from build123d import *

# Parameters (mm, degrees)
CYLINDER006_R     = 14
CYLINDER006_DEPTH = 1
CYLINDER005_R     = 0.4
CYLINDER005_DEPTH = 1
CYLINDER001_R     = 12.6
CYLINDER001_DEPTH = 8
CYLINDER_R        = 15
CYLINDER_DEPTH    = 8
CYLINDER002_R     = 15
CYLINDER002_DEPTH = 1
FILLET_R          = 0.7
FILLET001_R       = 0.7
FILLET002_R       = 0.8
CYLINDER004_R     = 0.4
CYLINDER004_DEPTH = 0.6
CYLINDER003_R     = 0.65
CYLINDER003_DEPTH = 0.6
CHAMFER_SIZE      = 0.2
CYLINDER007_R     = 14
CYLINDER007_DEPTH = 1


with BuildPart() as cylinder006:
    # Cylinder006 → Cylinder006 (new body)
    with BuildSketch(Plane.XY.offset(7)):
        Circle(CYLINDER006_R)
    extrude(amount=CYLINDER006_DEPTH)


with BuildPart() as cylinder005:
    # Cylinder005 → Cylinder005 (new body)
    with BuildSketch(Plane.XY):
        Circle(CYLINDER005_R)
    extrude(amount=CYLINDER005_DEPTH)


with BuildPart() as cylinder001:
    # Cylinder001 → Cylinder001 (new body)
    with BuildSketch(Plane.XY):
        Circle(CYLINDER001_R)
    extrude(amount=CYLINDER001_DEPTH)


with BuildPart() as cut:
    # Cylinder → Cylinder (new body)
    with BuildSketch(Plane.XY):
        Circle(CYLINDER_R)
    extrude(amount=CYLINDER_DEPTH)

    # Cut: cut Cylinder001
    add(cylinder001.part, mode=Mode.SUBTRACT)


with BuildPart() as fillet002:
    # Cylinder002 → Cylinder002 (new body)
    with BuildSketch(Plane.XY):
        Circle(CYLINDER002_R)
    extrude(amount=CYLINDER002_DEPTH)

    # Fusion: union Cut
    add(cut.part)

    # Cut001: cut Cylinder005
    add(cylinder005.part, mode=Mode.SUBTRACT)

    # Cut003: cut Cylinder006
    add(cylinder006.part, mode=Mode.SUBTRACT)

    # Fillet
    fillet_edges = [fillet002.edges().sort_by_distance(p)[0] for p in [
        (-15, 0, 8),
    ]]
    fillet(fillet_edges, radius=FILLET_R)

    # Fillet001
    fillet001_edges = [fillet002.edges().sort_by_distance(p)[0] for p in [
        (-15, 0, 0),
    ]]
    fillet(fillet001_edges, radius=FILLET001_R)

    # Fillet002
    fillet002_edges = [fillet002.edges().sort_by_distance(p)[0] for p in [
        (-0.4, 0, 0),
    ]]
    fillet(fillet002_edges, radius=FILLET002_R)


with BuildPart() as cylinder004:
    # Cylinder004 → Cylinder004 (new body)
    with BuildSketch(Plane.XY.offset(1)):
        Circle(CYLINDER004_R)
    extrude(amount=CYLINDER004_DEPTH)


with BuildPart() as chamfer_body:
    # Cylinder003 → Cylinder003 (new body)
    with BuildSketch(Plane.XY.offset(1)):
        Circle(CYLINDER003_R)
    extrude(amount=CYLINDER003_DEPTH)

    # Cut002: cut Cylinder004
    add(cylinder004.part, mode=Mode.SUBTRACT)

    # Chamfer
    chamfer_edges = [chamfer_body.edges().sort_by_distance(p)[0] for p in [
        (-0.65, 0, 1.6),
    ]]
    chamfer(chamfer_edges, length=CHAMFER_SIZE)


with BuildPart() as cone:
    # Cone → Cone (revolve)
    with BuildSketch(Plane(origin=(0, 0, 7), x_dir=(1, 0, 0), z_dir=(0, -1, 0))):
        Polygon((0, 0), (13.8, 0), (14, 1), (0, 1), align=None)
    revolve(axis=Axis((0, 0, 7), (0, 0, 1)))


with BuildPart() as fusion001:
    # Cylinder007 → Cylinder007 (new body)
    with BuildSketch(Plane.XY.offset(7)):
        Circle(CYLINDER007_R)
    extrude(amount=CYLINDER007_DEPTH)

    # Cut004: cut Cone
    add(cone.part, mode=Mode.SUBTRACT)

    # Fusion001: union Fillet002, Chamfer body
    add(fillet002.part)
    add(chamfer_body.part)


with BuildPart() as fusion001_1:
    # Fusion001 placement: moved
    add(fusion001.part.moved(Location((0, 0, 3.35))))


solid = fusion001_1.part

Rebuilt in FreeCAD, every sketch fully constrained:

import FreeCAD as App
import Part
import Sketcher
from FreeCAD import Vector
Q = App.Units.Quantity


def edges_at(feature, points):
    """Names of the edges that pass closest to the given points."""
    edges = feature.Shape.Edges
    near = lambda p: min(range(len(edges)), key=lambda i: edges[i].distToShape(Part.Vertex(*p))[0])
    return sorted({f"Edge{near(p) + 1}" for p in points})

doc = App.newDocument("Part")
body = doc.addObject("PartDesign::Body", "Body")

# Sketch on XY plane
sketch1 = body.newObject("Sketcher::SketchObject", "Sketch")
sketch1.AttachmentSupport = (doc.getObject("XY_Plane"), [""])
sketch1.MapMode = "FlatFace"
sketch1.AttachmentOffset = App.Placement(Vector(0, 0, 7), App.Rotation())
sketch1.addGeometry(Part.Circle(Vector(0, 0, 0), Vector(0, 0, 1), 14), False)
sketch1.addConstraint(Sketcher.Constraint("Coincident", 0, 3, -1, 1))
sketch1.addConstraint(Sketcher.Constraint("Diameter", 0, Q("28 mm")))
pad1 = body.newObject("PartDesign::Pad", "Pad")
pad1.Profile = sketch1
pad1.Length = 1
body2 = doc.addObject("PartDesign::Body", "Body001")

# Sketch on XY plane
sketch2 = body2.newObject("Sketcher::SketchObject", "Sketch001")
sketch2.AttachmentSupport = (doc.getObject("XY_Plane001"), [""])
sketch2.MapMode = "FlatFace"
sketch2.addGeometry(Part.Circle(Vector(0, 0, 0), Vector(0, 0, 1), 0.4), False)
sketch2.addConstraint(Sketcher.Constraint("Coincident", 0, 3, -1, 1))
sketch2.addConstraint(Sketcher.Constraint("Diameter", 0, Q("0.8 mm")))
pad2 = body2.newObject("PartDesign::Pad", "Pad001")
pad2.Profile = sketch2
pad2.Length = 1
body3 = doc.addObject("PartDesign::Body", "Body002")

# Sketch on XY plane
sketch3 = body3.newObject("Sketcher::SketchObject", "Sketch002")
sketch3.AttachmentSupport = (doc.getObject("XY_Plane002"), [""])
sketch3.MapMode = "FlatFace"
sketch3.addGeometry(Part.Circle(Vector(0, 0, 0), Vector(0, 0, 1), 13), False)
sketch3.addConstraint(Sketcher.Constraint("Coincident", 0, 3, -1, 1))
sketch3.addConstraint(Sketcher.Constraint("Diameter", 0, Q("25.2 mm")))
pad3 = body3.newObject("PartDesign::Pad", "Pad002")
pad3.Profile = sketch3
pad3.Length = 8
body4 = doc.addObject("PartDesign::Body", "Body003")

# Sketch on XY plane
sketch4 = body4.newObject("Sketcher::SketchObject", "Sketch003")
sketch4.AttachmentSupport = (doc.getObject("XY_Plane003"), [""])
sketch4.MapMode = "FlatFace"
sketch4.addGeometry(Part.Circle(Vector(0, 0, 0), Vector(0, 0, 1), 15), False)
sketch4.addConstraint(Sketcher.Constraint("Coincident", 0, 3, -1, 1))
sketch4.addConstraint(Sketcher.Constraint("Diameter", 0, Q("30 mm")))
pad4 = body4.newObject("PartDesign::Pad", "Pad003")
pad4.Profile = sketch4
pad4.Length = 8
doc.recompute()

boolean = body4.newObject("PartDesign::Boolean", "Boolean")
boolean.Type = "Cut"
boolean.addObjects([body3])
body5 = doc.addObject("PartDesign::Body", "Body004")

# Sketch on XY plane
sketch5 = body5.newObject("Sketcher::SketchObject", "Sketch004")
sketch5.AttachmentSupport = (doc.getObject("XY_Plane004"), [""])
sketch5.MapMode = "FlatFace"
sketch5.addGeometry(Part.Circle(Vector(0, 0, 0), Vector(0, 0, 1), 15), False)
sketch5.addConstraint(Sketcher.Constraint("Coincident", 0, 3, -1, 1))
sketch5.addConstraint(Sketcher.Constraint("Diameter", 0, Q("30 mm")))
pad5 = body5.newObject("PartDesign::Pad", "Pad004")
pad5.Profile = sketch5
pad5.Length = 1
doc.recompute()

boolean2 = body5.newObject("PartDesign::Boolean", "Boolean001")
boolean2.Type = "Fuse"
boolean2.addObjects([body4])
doc.recompute()

boolean3 = body5.newObject("PartDesign::Boolean", "Boolean002")
boolean3.Type = "Cut"
boolean3.addObjects([body2])
doc.recompute()

boolean4 = body5.newObject("PartDesign::Boolean", "Boolean003")
boolean4.Type = "Cut"
boolean4.addObjects([body])
doc.recompute()

fillet = body5.newObject("PartDesign::Fillet", "Fillet")
fillet.Base = (boolean4, edges_at(boolean4, [(-15, 0, 8)]))
fillet.Radius = 0.7
doc.recompute()

fillet2 = body5.newObject("PartDesign::Fillet", "Fillet001")
fillet2.Base = (fillet, edges_at(fillet, [(-15, 0, 0)]))
fillet2.Radius = 0.7
doc.recompute()

fillet3 = body5.newObject("PartDesign::Fillet", "Fillet002")
fillet3.Base = (fillet2, edges_at(fillet2, [(-0.4, 0, 0)]))
fillet3.Radius = 0.8
body6 = doc.addObject("PartDesign::Body", "Body005")

# Sketch on XY plane
sketch6 = body6.newObject("Sketcher::SketchObject", "Sketch005")
sketch6.AttachmentSupport = (doc.getObject("XY_Plane005"), [""])
sketch6.MapMode = "FlatFace"
sketch6.AttachmentOffset = App.Placement(Vector(0, 0, 1), App.Rotation())
sketch6.addGeometry(Part.Circle(Vector(0, 0, 0), Vector(0, 0, 1), 0.4), False)
sketch6.addConstraint(Sketcher.Constraint("Coincident", 0, 3, -1, 1))
sketch6.addConstraint(Sketcher.Constraint("Diameter", 0, Q("0.8 mm")))
pad6 = body6.newObject("PartDesign::Pad", "Pad005")
pad6.Profile = sketch6
pad6.Length = 0.6
body7 = doc.addObject("PartDesign::Body", "Body006")

# Sketch on XY plane
sketch7 = body7.newObject("Sketcher::SketchObject", "Sketch006")
sketch7.AttachmentSupport = (doc.getObject("XY_Plane006"), [""])
sketch7.MapMode = "FlatFace"
sketch7.AttachmentOffset = App.Placement(Vector(0, 0, 1), App.Rotation())
sketch7.addGeometry(Part.Circle(Vector(0, 0, 0), Vector(0, 0, 1), 0.7), False)
sketch7.addConstraint(Sketcher.Constraint("Coincident", 0, 3, -1, 1))
sketch7.addConstraint(Sketcher.Constraint("Diameter", 0, Q("1.3 mm")))
pad7 = body7.newObject("PartDesign::Pad", "Pad006")
pad7.Profile = sketch7
pad7.Length = 0.6
doc.recompute()

boolean5 = body7.newObject("PartDesign::Boolean", "Boolean004")
boolean5.Type = "Cut"
boolean5.addObjects([body6])
doc.recompute()

chamfer = body7.newObject("PartDesign::Chamfer", "Chamfer")
chamfer.Base = (boolean5, edges_at(boolean5, [(-0.65, 0, 1.6)]))
chamfer.Size = 0.2
body8 = doc.addObject("PartDesign::Body", "Body007")

# Sketch on XZ plane
sketch8 = body8.newObject("Sketcher::SketchObject", "Sketch007")
sketch8.AttachmentSupport = (doc.getObject("XZ_Plane007"), [""])
sketch8.MapMode = "FlatFace"
sketch8.addGeometry(Part.LineSegment(Vector(0, 7, 0), Vector(13.8, 7, 0)), False)
sketch8.addGeometry(Part.LineSegment(Vector(13.8, 7, 0), Vector(14, 8, 0)), False)
sketch8.addGeometry(Part.LineSegment(Vector(14, 8, 0), Vector(0, 8, 0)), False)
sketch8.addGeometry(Part.LineSegment(Vector(0, 8, 0), Vector(0, 7, 0)), False)
sketch8.addConstraint(Sketcher.Constraint("Coincident", 0, 2, 1, 1))
sketch8.addConstraint(Sketcher.Constraint("Coincident", 1, 2, 2, 1))
sketch8.addConstraint(Sketcher.Constraint("Coincident", 2, 2, 3, 1))
sketch8.addConstraint(Sketcher.Constraint("Coincident", 3, 2, 0, 1))
sketch8.addConstraint(Sketcher.Constraint("Horizontal", 0))
sketch8.addConstraint(Sketcher.Constraint("Horizontal", 2))
sketch8.addConstraint(Sketcher.Constraint("Vertical", 3))
sketch8.addConstraint(Sketcher.Constraint("PointOnObject", 2, 2, -2))
sketch8.addConstraint(Sketcher.Constraint("DistanceX", 2, 2, 2, 1, Q("14 mm")))
sketch8.addConstraint(Sketcher.Constraint("DistanceY", 3, 2, 3, 1, Q("1 mm")))
sketch8.addConstraint(Sketcher.Constraint("DistanceX", 0, 1, 0, 2, Q("13.8 mm")))
sketch8.addConstraint(Sketcher.Constraint("DistanceY", -1, 1, 0, 2, Q("7 mm")))
revolution = body8.newObject("PartDesign::Revolution", "Revolution")
revolution.Profile = sketch8
revolution.ReferenceAxis = (sketch8, ["V_Axis"])
revolution.Angle = 360
body9 = doc.addObject("PartDesign::Body", "Body008")

# Sketch on XY plane
sketch9 = body9.newObject("Sketcher::SketchObject", "Sketch008")
sketch9.AttachmentSupport = (doc.getObject("XY_Plane008"), [""])
sketch9.MapMode = "FlatFace"
sketch9.AttachmentOffset = App.Placement(Vector(0, 0, 7), App.Rotation())
sketch9.addGeometry(Part.Circle(Vector(0, 0, 0), Vector(0, 0, 1), 14), False)
sketch9.addConstraint(Sketcher.Constraint("Coincident", 0, 3, -1, 1))
sketch9.addConstraint(Sketcher.Constraint("Diameter", 0, Q("28 mm")))
pad8 = body9.newObject("PartDesign::Pad", "Pad007")
pad8.Profile = sketch9
pad8.Length = 1
doc.recompute()

boolean6 = body9.newObject("PartDesign::Boolean", "Boolean005")
boolean6.Type = "Cut"
boolean6.addObjects([body8])
doc.recompute()

boolean7 = body9.newObject("PartDesign::Boolean", "Boolean006")
boolean7.Type = "Fuse"
boolean7.addObjects([body5])
doc.recompute()

boolean8 = body9.newObject("PartDesign::Boolean", "Boolean007")
boolean8.Type = "Fuse"
boolean8.addObjects([body7])
body10 = doc.addObject("PartDesign::Body", "Body009")
doc.recompute()

body9.Placement = App.Placement(Vector(0, 0, 3.35), App.Rotation(Vector(0, 0, 1), 0))
boolean9 = body10.newObject("PartDesign::Boolean", "Boolean008")
boolean9.Type = "Fuse"
boolean9.addObjects([body9])

doc.recompute()
